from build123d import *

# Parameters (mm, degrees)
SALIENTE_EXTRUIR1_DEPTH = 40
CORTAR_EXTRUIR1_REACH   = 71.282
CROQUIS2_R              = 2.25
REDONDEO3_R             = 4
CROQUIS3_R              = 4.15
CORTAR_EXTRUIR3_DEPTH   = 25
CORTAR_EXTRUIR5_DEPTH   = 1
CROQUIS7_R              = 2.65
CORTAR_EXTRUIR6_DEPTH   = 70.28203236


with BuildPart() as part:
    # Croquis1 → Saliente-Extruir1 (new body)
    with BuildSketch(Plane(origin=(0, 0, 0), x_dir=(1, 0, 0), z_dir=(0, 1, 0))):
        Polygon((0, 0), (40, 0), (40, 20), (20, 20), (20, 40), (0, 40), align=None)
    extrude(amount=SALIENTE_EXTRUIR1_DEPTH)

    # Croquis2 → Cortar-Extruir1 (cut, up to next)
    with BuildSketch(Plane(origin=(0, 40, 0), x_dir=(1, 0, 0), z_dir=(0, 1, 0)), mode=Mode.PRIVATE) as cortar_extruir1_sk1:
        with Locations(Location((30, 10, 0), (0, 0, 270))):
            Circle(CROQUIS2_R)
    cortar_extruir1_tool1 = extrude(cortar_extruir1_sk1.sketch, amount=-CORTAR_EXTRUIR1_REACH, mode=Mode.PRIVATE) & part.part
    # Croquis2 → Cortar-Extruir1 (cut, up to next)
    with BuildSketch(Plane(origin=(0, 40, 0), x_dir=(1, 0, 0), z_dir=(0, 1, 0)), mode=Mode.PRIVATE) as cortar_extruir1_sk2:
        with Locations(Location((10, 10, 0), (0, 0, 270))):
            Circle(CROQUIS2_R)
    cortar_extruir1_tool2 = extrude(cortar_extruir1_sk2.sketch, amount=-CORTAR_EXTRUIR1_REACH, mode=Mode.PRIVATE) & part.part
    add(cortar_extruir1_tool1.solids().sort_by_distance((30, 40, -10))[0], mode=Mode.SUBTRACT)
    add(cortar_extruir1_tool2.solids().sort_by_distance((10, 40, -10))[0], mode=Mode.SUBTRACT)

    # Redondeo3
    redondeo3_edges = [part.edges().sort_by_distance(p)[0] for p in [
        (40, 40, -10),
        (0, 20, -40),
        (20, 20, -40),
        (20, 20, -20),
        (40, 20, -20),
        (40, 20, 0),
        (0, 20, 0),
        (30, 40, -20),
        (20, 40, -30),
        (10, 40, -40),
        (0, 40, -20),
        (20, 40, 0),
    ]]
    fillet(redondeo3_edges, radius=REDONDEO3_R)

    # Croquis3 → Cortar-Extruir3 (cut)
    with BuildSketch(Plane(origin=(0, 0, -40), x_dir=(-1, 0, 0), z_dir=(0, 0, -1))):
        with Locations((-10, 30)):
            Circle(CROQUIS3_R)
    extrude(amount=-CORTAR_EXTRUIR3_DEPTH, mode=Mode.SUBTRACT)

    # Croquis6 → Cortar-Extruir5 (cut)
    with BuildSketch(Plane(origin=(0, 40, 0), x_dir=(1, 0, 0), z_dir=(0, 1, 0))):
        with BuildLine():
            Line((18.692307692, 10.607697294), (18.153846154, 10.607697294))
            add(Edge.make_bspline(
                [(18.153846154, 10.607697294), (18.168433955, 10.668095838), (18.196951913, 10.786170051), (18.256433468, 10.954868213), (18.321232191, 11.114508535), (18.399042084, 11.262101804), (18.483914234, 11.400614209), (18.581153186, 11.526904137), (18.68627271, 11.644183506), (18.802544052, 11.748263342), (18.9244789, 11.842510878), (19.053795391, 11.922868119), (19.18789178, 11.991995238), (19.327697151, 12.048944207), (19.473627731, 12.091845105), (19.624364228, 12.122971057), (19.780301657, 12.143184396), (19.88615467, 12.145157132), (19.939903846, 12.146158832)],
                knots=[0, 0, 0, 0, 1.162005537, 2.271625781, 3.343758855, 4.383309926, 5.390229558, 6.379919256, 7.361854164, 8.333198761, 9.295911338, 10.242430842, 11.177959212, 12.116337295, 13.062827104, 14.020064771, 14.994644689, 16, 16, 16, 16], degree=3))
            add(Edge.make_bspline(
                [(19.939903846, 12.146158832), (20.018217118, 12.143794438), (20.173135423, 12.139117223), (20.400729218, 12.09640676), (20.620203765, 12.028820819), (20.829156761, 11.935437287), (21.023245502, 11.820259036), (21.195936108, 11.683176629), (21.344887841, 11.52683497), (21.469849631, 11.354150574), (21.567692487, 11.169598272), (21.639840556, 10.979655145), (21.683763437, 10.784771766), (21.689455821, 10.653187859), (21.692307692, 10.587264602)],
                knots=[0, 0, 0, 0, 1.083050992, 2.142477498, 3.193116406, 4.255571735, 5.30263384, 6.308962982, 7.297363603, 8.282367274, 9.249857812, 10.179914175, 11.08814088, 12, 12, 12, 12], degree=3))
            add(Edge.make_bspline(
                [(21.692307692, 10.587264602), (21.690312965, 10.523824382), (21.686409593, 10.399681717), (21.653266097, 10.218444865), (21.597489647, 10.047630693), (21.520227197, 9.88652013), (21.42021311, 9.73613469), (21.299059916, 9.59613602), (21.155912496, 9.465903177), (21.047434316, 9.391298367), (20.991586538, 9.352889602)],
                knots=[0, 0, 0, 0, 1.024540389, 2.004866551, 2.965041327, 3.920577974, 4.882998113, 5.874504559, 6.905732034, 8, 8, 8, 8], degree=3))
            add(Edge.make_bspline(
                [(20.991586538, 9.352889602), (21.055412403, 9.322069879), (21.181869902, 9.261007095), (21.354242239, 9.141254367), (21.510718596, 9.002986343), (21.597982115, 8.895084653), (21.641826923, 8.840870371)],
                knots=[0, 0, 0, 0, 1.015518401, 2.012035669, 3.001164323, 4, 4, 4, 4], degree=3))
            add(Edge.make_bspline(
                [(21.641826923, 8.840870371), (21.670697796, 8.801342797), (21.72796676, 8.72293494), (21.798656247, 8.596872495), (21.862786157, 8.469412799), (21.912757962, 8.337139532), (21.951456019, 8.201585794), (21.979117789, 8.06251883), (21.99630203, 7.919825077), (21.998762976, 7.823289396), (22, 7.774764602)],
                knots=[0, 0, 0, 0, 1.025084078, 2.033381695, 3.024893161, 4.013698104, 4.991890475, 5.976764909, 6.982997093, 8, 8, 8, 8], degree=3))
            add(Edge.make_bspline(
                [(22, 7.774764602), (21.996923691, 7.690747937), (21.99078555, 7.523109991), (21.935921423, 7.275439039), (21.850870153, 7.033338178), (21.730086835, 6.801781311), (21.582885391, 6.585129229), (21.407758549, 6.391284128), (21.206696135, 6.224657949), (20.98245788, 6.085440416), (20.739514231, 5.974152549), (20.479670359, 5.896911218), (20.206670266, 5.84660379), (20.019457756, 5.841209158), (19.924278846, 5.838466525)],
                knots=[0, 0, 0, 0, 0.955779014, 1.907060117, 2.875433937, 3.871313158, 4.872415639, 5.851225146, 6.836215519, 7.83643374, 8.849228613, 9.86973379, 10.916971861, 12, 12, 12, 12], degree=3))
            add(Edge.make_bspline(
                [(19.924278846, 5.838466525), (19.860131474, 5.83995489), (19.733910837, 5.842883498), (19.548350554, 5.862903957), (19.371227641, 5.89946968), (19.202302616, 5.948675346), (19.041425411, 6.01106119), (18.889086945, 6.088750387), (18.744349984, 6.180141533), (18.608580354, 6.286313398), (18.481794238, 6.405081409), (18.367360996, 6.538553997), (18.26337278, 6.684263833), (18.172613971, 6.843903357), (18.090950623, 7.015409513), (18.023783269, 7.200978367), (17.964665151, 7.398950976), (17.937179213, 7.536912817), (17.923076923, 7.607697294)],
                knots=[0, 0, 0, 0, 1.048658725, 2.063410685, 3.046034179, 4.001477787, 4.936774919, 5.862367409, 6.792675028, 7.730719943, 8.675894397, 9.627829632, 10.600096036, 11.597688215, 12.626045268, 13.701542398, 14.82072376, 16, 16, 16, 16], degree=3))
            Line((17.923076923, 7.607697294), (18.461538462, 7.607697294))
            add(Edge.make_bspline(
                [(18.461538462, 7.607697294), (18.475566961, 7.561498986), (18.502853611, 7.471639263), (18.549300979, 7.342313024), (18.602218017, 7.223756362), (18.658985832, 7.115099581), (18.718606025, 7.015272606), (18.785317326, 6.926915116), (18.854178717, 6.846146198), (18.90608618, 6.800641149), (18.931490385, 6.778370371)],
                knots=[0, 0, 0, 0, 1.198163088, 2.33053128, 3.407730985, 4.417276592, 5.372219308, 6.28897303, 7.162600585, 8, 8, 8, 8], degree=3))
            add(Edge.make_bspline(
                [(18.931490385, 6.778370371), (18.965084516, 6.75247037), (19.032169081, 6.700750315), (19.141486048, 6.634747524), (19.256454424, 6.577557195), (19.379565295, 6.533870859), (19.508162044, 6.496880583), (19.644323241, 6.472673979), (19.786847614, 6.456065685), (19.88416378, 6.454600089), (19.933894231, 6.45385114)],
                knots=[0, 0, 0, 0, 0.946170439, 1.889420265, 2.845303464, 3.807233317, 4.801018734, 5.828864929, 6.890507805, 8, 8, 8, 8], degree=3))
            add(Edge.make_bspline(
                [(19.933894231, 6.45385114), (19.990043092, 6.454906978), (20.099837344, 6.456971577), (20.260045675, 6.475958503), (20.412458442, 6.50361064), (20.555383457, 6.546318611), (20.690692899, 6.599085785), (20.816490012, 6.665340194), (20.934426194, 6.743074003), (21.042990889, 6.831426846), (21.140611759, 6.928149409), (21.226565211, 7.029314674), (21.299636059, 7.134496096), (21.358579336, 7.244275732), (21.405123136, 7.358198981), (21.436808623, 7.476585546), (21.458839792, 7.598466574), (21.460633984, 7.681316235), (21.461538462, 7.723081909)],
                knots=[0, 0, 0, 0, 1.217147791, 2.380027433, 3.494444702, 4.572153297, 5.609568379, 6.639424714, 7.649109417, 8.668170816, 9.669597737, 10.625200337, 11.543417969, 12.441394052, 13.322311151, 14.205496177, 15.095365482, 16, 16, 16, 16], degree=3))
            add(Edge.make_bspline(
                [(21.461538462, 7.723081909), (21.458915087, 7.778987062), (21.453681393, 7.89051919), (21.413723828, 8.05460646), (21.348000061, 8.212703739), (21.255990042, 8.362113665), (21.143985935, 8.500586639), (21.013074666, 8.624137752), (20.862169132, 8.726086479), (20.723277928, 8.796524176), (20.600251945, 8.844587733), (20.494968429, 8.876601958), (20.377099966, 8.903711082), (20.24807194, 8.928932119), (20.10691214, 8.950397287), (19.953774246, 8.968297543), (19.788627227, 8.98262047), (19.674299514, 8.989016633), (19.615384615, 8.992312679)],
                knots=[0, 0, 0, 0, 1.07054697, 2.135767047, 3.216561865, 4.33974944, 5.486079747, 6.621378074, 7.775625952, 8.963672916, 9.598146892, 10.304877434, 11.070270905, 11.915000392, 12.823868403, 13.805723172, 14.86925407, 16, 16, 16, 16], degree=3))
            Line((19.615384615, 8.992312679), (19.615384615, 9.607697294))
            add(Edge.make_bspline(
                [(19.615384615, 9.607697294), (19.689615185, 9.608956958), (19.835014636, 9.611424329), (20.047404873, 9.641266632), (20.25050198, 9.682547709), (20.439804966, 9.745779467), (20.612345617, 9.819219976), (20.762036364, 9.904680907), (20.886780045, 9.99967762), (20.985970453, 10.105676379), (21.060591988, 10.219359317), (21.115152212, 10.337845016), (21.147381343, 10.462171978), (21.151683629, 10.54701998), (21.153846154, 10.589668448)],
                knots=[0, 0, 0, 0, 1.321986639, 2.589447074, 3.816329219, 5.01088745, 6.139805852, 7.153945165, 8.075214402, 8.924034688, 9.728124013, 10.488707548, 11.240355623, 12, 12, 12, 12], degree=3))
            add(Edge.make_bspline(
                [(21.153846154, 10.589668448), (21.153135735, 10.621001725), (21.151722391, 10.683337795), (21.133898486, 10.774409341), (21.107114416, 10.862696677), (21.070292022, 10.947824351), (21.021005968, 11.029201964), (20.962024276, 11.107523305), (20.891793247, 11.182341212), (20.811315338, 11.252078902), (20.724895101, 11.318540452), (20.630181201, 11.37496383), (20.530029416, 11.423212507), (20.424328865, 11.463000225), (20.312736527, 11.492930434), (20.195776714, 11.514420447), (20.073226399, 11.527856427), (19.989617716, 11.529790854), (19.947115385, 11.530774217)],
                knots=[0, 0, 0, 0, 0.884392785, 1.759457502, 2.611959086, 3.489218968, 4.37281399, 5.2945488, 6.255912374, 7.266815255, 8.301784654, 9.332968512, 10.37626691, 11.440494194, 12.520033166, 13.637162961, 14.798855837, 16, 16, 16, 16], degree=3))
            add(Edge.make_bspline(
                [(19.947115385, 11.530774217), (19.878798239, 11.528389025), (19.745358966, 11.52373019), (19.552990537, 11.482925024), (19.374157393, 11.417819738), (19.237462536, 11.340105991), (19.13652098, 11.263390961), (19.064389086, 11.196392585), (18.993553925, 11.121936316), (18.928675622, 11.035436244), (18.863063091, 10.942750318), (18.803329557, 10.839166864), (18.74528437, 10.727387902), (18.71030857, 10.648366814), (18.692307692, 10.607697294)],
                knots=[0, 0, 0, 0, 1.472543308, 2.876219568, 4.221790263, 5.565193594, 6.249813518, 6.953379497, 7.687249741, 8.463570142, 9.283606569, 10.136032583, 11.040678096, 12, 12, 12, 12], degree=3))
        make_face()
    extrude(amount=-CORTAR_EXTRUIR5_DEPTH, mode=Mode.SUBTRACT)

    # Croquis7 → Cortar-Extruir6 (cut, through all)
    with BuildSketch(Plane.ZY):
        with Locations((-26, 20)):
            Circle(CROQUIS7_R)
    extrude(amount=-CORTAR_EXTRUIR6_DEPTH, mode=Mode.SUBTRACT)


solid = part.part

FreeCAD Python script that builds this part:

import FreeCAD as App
import Part
import Sketcher

V = App.Vector
Q = App.Units.Quantity


def edges_at(feature, points):
    """Names of the edges that pass closest to the given points."""
    edges = feature.Shape.Edges
    near = lambda p: min(range(len(edges)), key=lambda i: edges[i].distToShape(Part.Vertex(*p))[0])
    return sorted({f"Edge{near(p) + 1}" for p in points})

doc = App.newDocument("Part")
params = doc.addObject("Spreadsheet::Sheet", "Params")
for row, (alias, value) in enumerate([
    ("sketch1_width", "40 mm"),
    ("pad1_length", "40 mm"),
    ("sketch2_diameter", "4.5 mm"),
    ("sketch3_diameter", "4.5 mm"),
    ("fillet_radius", "4 mm"),
    ("sketch4_diameter", "8.3 mm"),
    ("pocket3_length", "25 mm"),
    ("pocket4_length", "1 mm"),
    ("sketch6_diameter", "5.3 mm"),
], start=1):
    params.set(f"A{row}", alias)
    params.set(f"B{row}", "=" + value)
    params.setAlias(f"B{row}", alias)

body = doc.addObject("PartDesign::Body", "Body")

sketch1 = body.newObject("Sketcher::SketchObject", "Sketch")
sketch1.AttachmentSupport = (doc.getObject("XZ_Plane"), [""])
sketch1.MapMode = "FlatFace"
sketch1.addGeometry(Part.LineSegment(V(0, 0, 0), V(40, 0, 0)), False)
sketch1.addGeometry(Part.LineSegment(V(40, 0, 0), V(40, -20, 0)), False)
sketch1.addGeometry(Part.LineSegment(V(40, -20, 0), V(20, -20, 0)), False)
sketch1.addGeometry(Part.LineSegment(V(20, -20, 0), V(20, -40, 0)), False)
sketch1.addGeometry(Part.LineSegment(V(20, -40, 0), V(0, -40, 0)), False)
sketch1.addGeometry(Part.LineSegment(V(0, -40, 0), V(0, 0, 0)), False)
sketch1.addConstraint(Sketcher.Constraint("Coincident", 0, 2, 1, 1))
sketch1.addConstraint(Sketcher.Constraint("Coincident", 1, 2, 2, 1))
sketch1.addConstraint(Sketcher.Constraint("Coincident", 2, 2, 3, 1))
sketch1.addConstraint(Sketcher.Constraint("Coincident", 3, 2, 4, 1))
sketch1.addConstraint(Sketcher.Constraint("Coincident", 4, 2, 5, 1))
sketch1.addConstraint(Sketcher.Constraint("Coincident", 5, 2, 0, 1))
sketch1.addConstraint(Sketcher.Constraint("Horizontal", 0))
sketch1.addConstraint(Sketcher.Constraint("Vertical", 1))
sketch1.addConstraint(Sketcher.Constraint("Horizontal", 2))
sketch1.addConstraint(Sketcher.Constraint("Vertical", 3))
sketch1.addConstraint(Sketcher.Constraint("Horizontal", 4))
sketch1.addConstraint(Sketcher.Constraint("Vertical", 5))
sketch1.addConstraint(Sketcher.Constraint("Coincident", 5, 2, -1, 1))
sketch1.addConstraint(Sketcher.Constraint("Equal", 2, 4))
sketch1.addConstraint(Sketcher.Constraint("Equal", 4, 1))
sketch1.addConstraint(Sketcher.Constraint("Equal", 1, 3))
sketch1.addConstraint(Sketcher.Constraint("DistanceX", 0, 1, 0, 2, Q("40 mm")))
sketch1.setExpression("Constraints[16]", "Params.sketch1_width")
pad1 = body.newObject("PartDesign::Pad", "Pad")
pad1.Profile = sketch1
pad1.setExpression("Length", "Params.pad1_length")
pad1.Reversed = True

sketch2 = body.newObject("Sketcher::SketchObject", "Sketch001")
sketch2.AttachmentSupport = (doc.getObject("XZ_Plane"), [""])
sketch2.MapMode = "FlatFace"
sketch2.AttachmentOffset = App.Placement(V(0, 0, -40), App.Rotation())
sketch2.addGeometry(Part.Circle(V(30, -10, 0), V(0, 0, 1), 2.25), False)
sketch2.addConstraint(Sketcher.Constraint("Diameter", 0, Q("4.5 mm")))
sketch2.addConstraint(Sketcher.Constraint("DistanceX", -1, 1, 0, 3, Q("30 mm")))
sketch2.addConstraint(Sketcher.Constraint("DistanceY", 0, 3, -1, 1, Q("10 mm")))
sketch2.setExpression("Constraints[0]", "Params.sketch2_diameter")
pocket1 = body.newObject("PartDesign::Pocket", "Pocket")
pocket1.Profile = sketch2
pocket1.Type = "UpToFirst"
pocket1.Reversed = True

sketch3 = body.newObject("Sketcher::SketchObject", "Sketch002")
sketch3.AttachmentSupport = (doc.getObject("XZ_Plane"), [""])
sketch3.MapMode = "FlatFace"
sketch3.AttachmentOffset = App.Placement(V(0, 0, -40), App.Rotation())
sketch3.addGeometry(Part.Circle(V(10, -10, 0), V(0, 0, 1), 2.25), False)
sketch3.addConstraint(Sketcher.Constraint("Diameter", 0, Q("4.5 mm")))
sketch3.addConstraint(Sketcher.Constraint("DistanceX", -1, 1, 0, 3, Q("10 mm")))
sketch3.addConstraint(Sketcher.Constraint("DistanceY", 0, 3, -1, 1, Q("10 mm")))
sketch3.setExpression("Constraints[0]", "Params.sketch3_diameter")
pocket2 = body.newObject("PartDesign::Pocket", "Pocket001")
pocket2.Profile = sketch3
pocket2.Type = "UpToFirst"
pocket2.Reversed = True
doc.recompute()

fillet = body.newObject("PartDesign::Fillet", "Fillet")
fillet.Base = (pocket2, edges_at(pocket2, [
    (40, 40, -10),
    (0, 20, -40),
    (20, 20, -40),
    (20, 20, -20),
    (40, 20, -20),
    (40, 20, 0),
    (0, 20, 0),
    (30, 40, -20),
    (20, 40, -30),
    (10, 40, -40),
    (0, 40, -20),
    (20, 40, 0),
]))
fillet.setExpression("Radius", "Params.fillet_radius")

sketch4 = body.newObject("Sketcher::SketchObject", "Sketch003")
sketch4.AttachmentSupport = (doc.getObject("XY_Plane"), [""])
sketch4.MapMode = "FlatFace"
sketch4.AttachmentOffset = App.Placement(V(0, 0, -40), App.Rotation())
sketch4.addGeometry(Part.Circle(V(10, 30, 0), V(0, 0, 1), 4.15), False)
sketch4.addConstraint(Sketcher.Constraint("Diameter", 0, Q("8.3 mm")))
sketch4.addConstraint(Sketcher.Constraint("DistanceX", -1, 1, 0, 3, Q("10 mm")))
sketch4.addConstraint(Sketcher.Constraint("DistanceY", -1, 1, 0, 3, Q("30 mm")))
sketch4.setExpression("Constraints[0]", "Params.sketch4_diameter")
pocket3 = body.newObject("PartDesign::Pocket", "Pocket002")
pocket3.Profile = sketch4
pocket3.setExpression("Length", "Params.pocket3_length")
pocket3.Reversed = True

sketch5 = body.newObject("Sketcher::SketchObject", "Sketch004")
sketch5.AttachmentSupport = (doc.getObject("XZ_Plane"), [""])
sketch5.MapMode = "FlatFace"
sketch5.AttachmentOffset = App.Placement(V(0, 0, -40), App.Rotation())
sketch5.addGeometry(Part.LineSegment(V(18.153846, -10.607697, 0), V(18.692308, -10.607697, 0)), False)
sketch5.addGeometry(Part.BSplineCurve([V(19.947115, -11.530774, 0), V(19.878798, -11.528389, 0), V(19.745359, -11.52373, 0), V(19.552991, -11.482925, 0), V(19.374157, -11.41782, 0), V(19.237463, -11.340106, 0), V(19.136521, -11.263391, 0), V(19.064389, -11.196393, 0), V(18.993554, -11.121936, 0), V(18.928676, -11.035436, 0), V(18.863063, -10.94275, 0), V(18.80333, -10.839167, 0), V(18.745284, -10.727388, 0), V(18.710309, -10.648367, 0), V(18.692308, -10.607697, 0)], [4, 1, 1, 1, 1, 1, 1, 1, 1, 1, 1, 1, 4], [0, 1.472543308, 2.876219568, 4.221790263, 5.565193594, 6.249813518, 6.953379497, 7.687249741, 8.463570142, 9.283606569, 10.136032583, 11.040678096, 12], False, 3, [1, 1, 1, 1, 1, 1, 1, 1, 1, 1, 1, 1, 1, 1, 1], False), False)
sketch5.addGeometry(Part.BSplineCurve([V(21.153846, -10.589668, 0), V(21.153136, -10.621002, 0), V(21.151722, -10.683338, 0), V(21.133898, -10.774409, 0), V(21.107114, -10.862697, 0), V(21.070292, -10.947824, 0), V(21.021006, -11.029202, 0), V(20.962024, -11.107523, 0), V(20.891793, -11.182341, 0), V(20.811315, -11.252079, 0), V(20.724895, -11.31854, 0), V(20.630181, -11.374964, 0), V(20.530029, -11.423213, 0), V(20.424329, -11.463, 0), V(20.312737, -11.49293, 0), V(20.195777, -11.51442, 0), V(20.073226, -11.527856, 0), V(19.989618, -11.529791, 0), V(19.947115, -11.530774, 0)], [4, 1, 1, 1, 1, 1, 1, 1, 1, 1, 1, 1, 1, 1, 1, 1, 4], [0, 0.884392785, 1.759457502, 2.611959086, 3.489218968, 4.37281399, 5.2945488, 6.255912374, 7.266815255, 8.301784654, 9.332968512, 10.37626691, 11.440494194, 12.520033166, 13.637162961, 14.798855837, 16], False, 3, [1, 1, 1, 1, 1, 1, 1, 1, 1, 1, 1, 1, 1, 1, 1, 1, 1, 1, 1], False), False)
sketch5.addGeometry(Part.BSplineCurve([V(19.615385, -9.607697, 0), V(19.689615, -9.608957, 0), V(19.835015, -9.611424, 0), V(20.047405, -9.641267, 0), V(20.250502, -9.682548, 0), V(20.439805, -9.745779, 0), V(20.612346, -9.81922, 0), V(20.762036, -9.904681, 0), V(20.88678, -9.999678, 0), V(20.98597, -10.105676, 0), V(21.060592, -10.219359, 0), V(21.115152, -10.337845, 0), V(21.147381, -10.462172, 0), V(21.151684, -10.54702, 0), V(21.153846, -10.589668, 0)], [4, 1, 1, 1, 1, 1, 1, 1, 1, 1, 1, 1, 4], [0, 1.321986639, 2.589447074, 3.816329219, 5.01088745, 6.139805852, 7.153945165, 8.075214402, 8.924034688, 9.728124013, 10.488707548, 11.240355623, 12], False, 3, [1, 1, 1, 1, 1, 1, 1, 1, 1, 1, 1, 1, 1, 1, 1], False), False)
sketch5.addGeometry(Part.LineSegment(V(19.615385, -9.607697, 0), V(19.615385, -8.992313, 0)), False)
sketch5.addGeometry(Part.BSplineCurve([V(21.461538, -7.723082, 0), V(21.458915, -7.778987, 0), V(21.453681, -7.890519, 0), V(21.413724, -8.054606, 0), V(21.348, -8.212704, 0), V(21.25599, -8.362114, 0), V(21.143986, -8.500587, 0), V(21.013075, -8.624138, 0), V(20.862169, -8.726086, 0), V(20.723278, -8.796524, 0), V(20.600252, -8.844588, 0), V(20.494968, -8.876602, 0), V(20.3771, -8.903711, 0), V(20.248072, -8.928932, 0), V(20.106912, -8.950397, 0), V(19.953774, -8.968298, 0), V(19.788627, -8.98262, 0), V(19.6743, -8.989017, 0), V(19.615385, -8.992313, 0)], [4, 1, 1, 1, 1, 1, 1, 1, 1, 1, 1, 1, 1, 1, 1, 1, 4], [0, 1.07054697, 2.135767047, 3.216561865, 4.33974944, 5.486079747, 6.621378074, 7.775625952, 8.963672916, 9.598146892, 10.304877434, 11.070270905, 11.915000392, 12.823868403, 13.805723172, 14.86925407, 16], False, 3, [1, 1, 1, 1, 1, 1, 1, 1, 1, 1, 1, 1, 1, 1, 1, 1, 1, 1, 1], False), False)
sketch5.addGeometry(Part.BSplineCurve([V(19.933894, -6.453851, 0), V(19.990043, -6.454907, 0), V(20.099837, -6.456972, 0), V(20.260046, -6.475959, 0), V(20.412458, -6.503611, 0), V(20.555383, -6.546319, 0), V(20.690693, -6.599086, 0), V(20.81649, -6.66534, 0), V(20.934426, -6.743074, 0), V(21.042991, -6.831427, 0), V(21.140612, -6.928149, 0), V(21.226565, -7.029315, 0), V(21.299636, -7.134496, 0), V(21.358579, -7.244276, 0), V(21.405123, -7.358199, 0), V(21.436809, -7.476586, 0), V(21.45884, -7.598467, 0), V(21.460634, -7.681316, 0), V(21.461538, -7.723082, 0)], [4, 1, 1, 1, 1, 1, 1, 1, 1, 1, 1, 1, 1, 1, 1, 1, 4], [0, 1.217147791, 2.380027433, 3.494444702, 4.572153297, 5.609568379, 6.639424714, 7.649109417, 8.668170816, 9.669597737, 10.625200337, 11.543417969, 12.441394052, 13.322311151, 14.205496177, 15.095365482, 16], False, 3, [1, 1, 1, 1, 1, 1, 1, 1, 1, 1, 1, 1, 1, 1, 1, 1, 1, 1, 1], False), False)
sketch5.addGeometry(Part.BSplineCurve([V(18.93149, -6.77837, 0), V(18.965085, -6.75247, 0), V(19.032169, -6.70075, 0), V(19.141486, -6.634748, 0), V(19.256454, -6.577557, 0), V(19.379565, -6.533871, 0), V(19.508162, -6.496881, 0), V(19.644323, -6.472674, 0), V(19.786848, -6.456066, 0), V(19.884164, -6.4546, 0), V(19.933894, -6.453851, 0)], [4, 1, 1, 1, 1, 1, 1, 1, 4], [0, 0.946170439, 1.889420265, 2.845303464, 3.807233317, 4.801018734, 5.828864929, 6.890507805, 8], False, 3, [1, 1, 1, 1, 1, 1, 1, 1, 1, 1, 1], False), False)
sketch5.addGeometry(Part.BSplineCurve([V(18.461538, -7.607697, 0), V(18.475567, -7.561499, 0), V(18.502854, -7.471639, 0), V(18.549301, -7.342313, 0), V(18.602218, -7.223756, 0), V(18.658986, -7.1151, 0), V(18.718606, -7.015273, 0), V(18.785317, -6.926915, 0), V(18.854179, -6.846146, 0), V(18.906086, -6.800641, 0), V(18.93149, -6.77837, 0)], [4, 1, 1, 1, 1, 1, 1, 1, 4], [0, 1.198163088, 2.33053128, 3.407730985, 4.417276592, 5.372219308, 6.28897303, 7.162600585, 8], False, 3, [1, 1, 1, 1, 1, 1, 1, 1, 1, 1, 1], False), False)
sketch5.addGeometry(Part.LineSegment(V(18.461538, -7.607697, 0), V(17.923077, -7.607697, 0)), False)
sketch5.addGeometry(Part.BSplineCurve([V(19.924279, -5.838467, 0), V(19.860131, -5.839955, 0), V(19.733911, -5.842883, 0), V(19.548351, -5.862904, 0), V(19.371228, -5.89947, 0), V(19.202303, -5.948675, 0), V(19.041425, -6.011061, 0), V(18.889087, -6.08875, 0), V(18.74435, -6.180142, 0), V(18.60858, -6.286313, 0), V(18.481794, -6.405081, 0), V(18.367361, -6.538554, 0), V(18.263373, -6.684264, 0), V(18.172614, -6.843903, 0), V(18.090951, -7.01541, 0), V(18.023783, -7.200978, 0), V(17.964665, -7.398951, 0), V(17.937179, -7.536913, 0), V(17.923077, -7.607697, 0)], [4, 1, 1, 1, 1, 1, 1, 1, 1, 1, 1, 1, 1, 1, 1, 1, 4], [0, 1.048658725, 2.063410685, 3.046034179, 4.001477787, 4.936774919, 5.862367409, 6.792675028, 7.730719943, 8.675894397, 9.627829632, 10.600096036, 11.597688215, 12.626045268, 13.701542398, 14.82072376, 16], False, 3, [1, 1, 1, 1, 1, 1, 1, 1, 1, 1, 1, 1, 1, 1, 1, 1, 1, 1, 1], False), False)
sketch5.addGeometry(Part.BSplineCurve([V(22, -7.774765, 0), V(21.996924, -7.690748, 0), V(21.990786, -7.52311, 0), V(21.935921, -7.275439, 0), V(21.85087, -7.033338, 0), V(21.730087, -6.801781, 0), V(21.582885, -6.585129, 0), V(21.407759, -6.391284, 0), V(21.206696, -6.224658, 0), V(20.982458, -6.08544, 0), V(20.739514, -5.974153, 0), V(20.47967, -5.896911, 0), V(20.20667, -5.846604, 0), V(20.019458, -5.841209, 0), V(19.924279, -5.838467, 0)], [4, 1, 1, 1, 1, 1, 1, 1, 1, 1, 1, 1, 4], [0, 0.955779014, 1.907060117, 2.875433937, 3.871313158, 4.872415639, 5.851225146, 6.836215519, 7.83643374, 8.849228613, 9.86973379, 10.916971861, 12], False, 3, [1, 1, 1, 1, 1, 1, 1, 1, 1, 1, 1, 1, 1, 1, 1], False), False)
sketch5.addGeometry(Part.BSplineCurve([V(21.641827, -8.84087, 0), V(21.670698, -8.801343, 0), V(21.727967, -8.722935, 0), V(21.798656, -8.596872, 0), V(21.862786, -8.469413, 0), V(21.912758, -8.33714, 0), V(21.951456, -8.201586, 0), V(21.979118, -8.062519, 0), V(21.996302, -7.919825, 0), V(21.998763, -7.823289, 0), V(22, -7.774765, 0)], [4, 1, 1, 1, 1, 1, 1, 1, 4], [0, 1.025084078, 2.033381695, 3.024893161, 4.013698104, 4.991890475, 5.976764909, 6.982997093, 8], False, 3, [1, 1, 1, 1, 1, 1, 1, 1, 1, 1, 1], False), False)
sketch5.addGeometry(Part.BSplineCurve([V(20.991587, -9.35289, 0), V(21.055412, -9.32207, 0), V(21.18187, -9.261007, 0), V(21.354242, -9.141254, 0), V(21.510719, -9.002986, 0), V(21.597982, -8.895085, 0), V(21.641827, -8.84087, 0)], [4, 1, 1, 1, 4], [0, 1.015518401, 2.012035669, 3.001164323, 4], False, 3, [1, 1, 1, 1, 1, 1, 1], False), False)
sketch5.addGeometry(Part.BSplineCurve([V(21.692308, -10.587265, 0), V(21.690313, -10.523824, 0), V(21.68641, -10.399682, 0), V(21.653266, -10.218445, 0), V(21.59749, -10.047631, 0), V(21.520227, -9.88652, 0), V(21.420213, -9.736135, 0), V(21.29906, -9.596136, 0), V(21.155912, -9.465903, 0), V(21.047434, -9.391298, 0), V(20.991587, -9.35289, 0)], [4, 1, 1, 1, 1, 1, 1, 1, 4], [0, 1.024540389, 2.004866551, 2.965041327, 3.920577974, 4.882998113, 5.874504559, 6.905732034, 8], False, 3, [1, 1, 1, 1, 1, 1, 1, 1, 1, 1, 1], False), False)
sketch5.addGeometry(Part.BSplineCurve([V(19.939904, -12.146159, 0), V(20.018217, -12.143794, 0), V(20.173135, -12.139117, 0), V(20.400729, -12.096407, 0), V(20.620204, -12.028821, 0), V(20.829157, -11.935437, 0), V(21.023246, -11.820259, 0), V(21.195936, -11.683177, 0), V(21.344888, -11.526835, 0), V(21.46985, -11.354151, 0), V(21.567692, -11.169598, 0), V(21.639841, -10.979655, 0), V(21.683763, -10.784772, 0), V(21.689456, -10.653188, 0), V(21.692308, -10.587265, 0)], [4, 1, 1, 1, 1, 1, 1, 1, 1, 1, 1, 1, 4], [0, 1.083050992, 2.142477498, 3.193116406, 4.255571735, 5.30263384, 6.308962982, 7.297363603, 8.282367274, 9.249857812, 10.179914175, 11.08814088, 12], False, 3, [1, 1, 1, 1, 1, 1, 1, 1, 1, 1, 1, 1, 1, 1, 1], False), False)
sketch5.addGeometry(Part.BSplineCurve([V(18.153846, -10.607697, 0), V(18.168434, -10.668096, 0), V(18.196952, -10.78617, 0), V(18.256433, -10.954868, 0), V(18.321232, -11.114509, 0), V(18.399042, -11.262102, 0), V(18.483914, -11.400614, 0), V(18.581153, -11.526904, 0), V(18.686273, -11.644184, 0), V(18.802544, -11.748263, 0), V(18.924479, -11.842511, 0), V(19.053795, -11.922868, 0), V(19.187892, -11.991995, 0), V(19.327697, -12.048944, 0), V(19.473628, -12.091845, 0), V(19.624364, -12.122971, 0), V(19.780302, -12.143184, 0), V(19.886155, -12.145157, 0), V(19.939904, -12.146159, 0)], [4, 1, 1, 1, 1, 1, 1, 1, 1, 1, 1, 1, 1, 1, 1, 1, 4], [0, 1.162005537, 2.271625781, 3.343758855, 4.383309926, 5.390229558, 6.379919256, 7.361854164, 8.333198761, 9.295911338, 10.242430842, 11.177959212, 12.116337295, 13.062827104, 14.020064771, 14.994644689, 16], False, 3, [1, 1, 1, 1, 1, 1, 1, 1, 1, 1, 1, 1, 1, 1, 1, 1, 1, 1, 1], False), False)
sketch5.addConstraint(Sketcher.Constraint("Block", 1))
sketch5.addConstraint(Sketcher.Constraint("Block", 2))
sketch5.addConstraint(Sketcher.Constraint("Block", 3))
sketch5.addConstraint(Sketcher.Constraint("Block", 5))
sketch5.addConstraint(Sketcher.Constraint("Block", 6))
sketch5.addConstraint(Sketcher.Constraint("Block", 7))
sketch5.addConstraint(Sketcher.Constraint("Block", 8))
sketch5.addConstraint(Sketcher.Constraint("Block", 10))
sketch5.addConstraint(Sketcher.Constraint("Block", 11))
sketch5.addConstraint(Sketcher.Constraint("Block", 12))
sketch5.addConstraint(Sketcher.Constraint("Block", 13))
sketch5.addConstraint(Sketcher.Constraint("Block", 14))
sketch5.addConstraint(Sketcher.Constraint("Block", 15))
sketch5.addConstraint(Sketcher.Constraint("Block", 16))
sketch5.addConstraint(Sketcher.Constraint("Coincident", 0, 2, 1, 2))
sketch5.addConstraint(Sketcher.Constraint("Coincident", 3, 1, 4, 1))
sketch5.addConstraint(Sketcher.Constraint("Coincident", 4, 2, 5, 2))
sketch5.addConstraint(Sketcher.Constraint("Coincident", 8, 1, 9, 1))
sketch5.addConstraint(Sketcher.Constraint("Coincident", 9, 2, 10, 2))
sketch5.addConstraint(Sketcher.Constraint("Coincident", 16, 1, 0, 1))
pocket4 = body.newObject("PartDesign::Pocket", "Pocket003")
pocket4.Profile = sketch5
pocket4.setExpression("Length", "Params.pocket4_length")
pocket4.Reversed = True

sketch6 = body.newObject("Sketcher::SketchObject", "Sketch005")
sketch6.AttachmentSupport = (doc.getObject("YZ_Plane"), [""])
sketch6.MapMode = "FlatFace"
sketch6.addGeometry(Part.Circle(V(20, -26, 0), V(0, 0, 1), 2.65), False)
sketch6.addConstraint(Sketcher.Constraint("Diameter", 0, Q("5.3 mm")))
sketch6.addConstraint(Sketcher.Constraint("DistanceX", -1, 1, 0, 3, Q("20 mm")))
sketch6.addConstraint(Sketcher.Constraint("DistanceY", 0, 3, -1, 1, Q("26 mm")))
sketch6.setExpression("Constraints[0]", "Params.sketch6_diameter")
pocket5 = body.newObject("PartDesign::Pocket", "Pocket004")
pocket5.Profile = sketch6
pocket5.Type = "ThroughAll"
pocket5.Reversed = True

doc.recompute()
